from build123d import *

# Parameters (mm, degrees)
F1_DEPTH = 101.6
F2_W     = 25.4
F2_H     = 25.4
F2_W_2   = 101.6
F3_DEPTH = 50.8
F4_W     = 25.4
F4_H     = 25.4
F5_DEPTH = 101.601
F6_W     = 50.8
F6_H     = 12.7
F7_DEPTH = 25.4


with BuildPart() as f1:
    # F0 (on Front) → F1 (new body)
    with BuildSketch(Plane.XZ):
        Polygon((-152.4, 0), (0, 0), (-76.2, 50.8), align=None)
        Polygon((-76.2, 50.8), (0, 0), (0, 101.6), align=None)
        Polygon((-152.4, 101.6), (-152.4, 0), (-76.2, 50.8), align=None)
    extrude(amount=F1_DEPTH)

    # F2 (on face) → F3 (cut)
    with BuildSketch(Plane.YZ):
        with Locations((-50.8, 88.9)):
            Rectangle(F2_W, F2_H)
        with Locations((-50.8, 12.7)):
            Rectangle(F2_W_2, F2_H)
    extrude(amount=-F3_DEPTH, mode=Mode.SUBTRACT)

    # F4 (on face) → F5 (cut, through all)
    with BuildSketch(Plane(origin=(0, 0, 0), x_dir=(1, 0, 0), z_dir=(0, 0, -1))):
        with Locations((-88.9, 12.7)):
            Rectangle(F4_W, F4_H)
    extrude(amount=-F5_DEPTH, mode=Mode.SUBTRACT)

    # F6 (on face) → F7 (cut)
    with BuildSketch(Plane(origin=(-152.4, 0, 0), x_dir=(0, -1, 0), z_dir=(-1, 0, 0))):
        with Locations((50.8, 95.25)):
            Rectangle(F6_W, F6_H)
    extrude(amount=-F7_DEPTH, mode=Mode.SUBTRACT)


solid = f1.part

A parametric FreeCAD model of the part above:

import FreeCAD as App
import Part
import Sketcher
Q = App.Units.Quantity

doc = App.newDocument("Part")
body = doc.addObject("PartDesign::Body", "Body")

sketch1 = body.newObject("Sketcher::SketchObject", "Sketch")
sketch1.AttachmentSupport = (doc.getObject("XZ_Plane"), [""])
sketch1.MapMode = "FlatFace"
sketch1.addGeometry([
    Part.LineSegment(App.Vector(-152.4, 0, 0), App.Vector(0, 0, 0)),
    Part.LineSegment(App.Vector(0, 0, 0), App.Vector(0, 101.6, 0)),
    Part.LineSegment(App.Vector(0, 101.6, 0), App.Vector(-76.2, 50.8, 0)),
    Part.LineSegment(App.Vector(-76.2, 50.8, 0), App.Vector(-152.4, 101.6, 0)),
    Part.LineSegment(App.Vector(-152.4, 101.6, 0), App.Vector(-152.4, 0, 0)),
], False)
sketch1.addConstraint([
    Sketcher.Constraint("Coincident", 0, 2, 1, 1),
    Sketcher.Constraint("Coincident", 1, 2, 2, 1),
    Sketcher.Constraint("Coincident", 2, 2, 3, 1),
    Sketcher.Constraint("Coincident", 3, 2, 4, 1),
    Sketcher.Constraint("Coincident", 4, 2, 0, 1),
    Sketcher.Constraint("Horizontal", 0),
    Sketcher.Constraint("Vertical", 1),
    Sketcher.Constraint("Vertical", 4),
    Sketcher.Constraint("Coincident", 0, 2, -1, 1),
    Sketcher.Constraint("Horizontal", 1, 2, 3, 2),
    Sketcher.Constraint("Equal", 2, 3),
    Sketcher.Constraint("DistanceX", 0, 1, 0, 2, Q("6 in")),
    Sketcher.Constraint("DistanceY", 1, 1, 1, 2, Q("4 in")),
    Sketcher.Constraint("DistanceY", -1, 1, 2, 2, Q("2 in")),
])
pad1 = body.newObject("PartDesign::Pad", "Pad")
pad1.Profile = sketch1
pad1.Length = Q("4 in")

sketch2 = body.newObject("Sketcher::SketchObject", "Sketch001")
sketch2.AttachmentSupport = (doc.getObject("YZ_Plane"), [""])
sketch2.MapMode = "FlatFace"
sketch2.addGeometry([
    Part.LineSegment(App.Vector(-63.5, 101.6, 0), App.Vector(-63.5, 76.2, 0)),
    Part.LineSegment(App.Vector(-63.5, 76.2, 0), App.Vector(-38.1, 76.2, 0)),
    Part.LineSegment(App.Vector(-38.1, 76.2, 0), App.Vector(-38.1, 101.6, 0)),
    Part.LineSegment(App.Vector(-38.1, 101.6, 0), App.Vector(-63.5, 101.6, 0)),
    Part.LineSegment(App.Vector(-101.6, 25.4, 0), App.Vector(-101.6, 0, 0)),
    Part.LineSegment(App.Vector(-101.6, 0, 0), App.Vector(0, 0, 0)),
    Part.LineSegment(App.Vector(0, 0, 0), App.Vector(0, 25.4, 0)),
    Part.LineSegment(App.Vector(0, 25.4, 0), App.Vector(-101.6, 25.4, 0)),
], False)
sketch2.addConstraint([
    Sketcher.Constraint("Coincident", 0, 2, 1, 1),
    Sketcher.Constraint("Coincident", 1, 2, 2, 1),
    Sketcher.Constraint("Coincident", 2, 2, 3, 1),
    Sketcher.Constraint("Coincident", 3, 2, 0, 1),
    Sketcher.Constraint("Coincident", 4, 2, 5, 1),
    Sketcher.Constraint("Coincident", 5, 2, 6, 1),
    Sketcher.Constraint("Coincident", 6, 2, 7, 1),
    Sketcher.Constraint("Coincident", 7, 2, 4, 1),
    Sketcher.Constraint("Vertical", 0),
    Sketcher.Constraint("Horizontal", 1),
    Sketcher.Constraint("Vertical", 2),
    Sketcher.Constraint("Horizontal", 3),
    Sketcher.Constraint("Vertical", 4),
    Sketcher.Constraint("Horizontal", 5),
    Sketcher.Constraint("Vertical", 6),
    Sketcher.Constraint("Horizontal", 7),
    Sketcher.Constraint("Coincident", 5, 2, -1, 1),
    Sketcher.Constraint("Equal", 3, 0),
    Sketcher.Constraint("Equal", 2, 4),
    Sketcher.Constraint("DistanceX", 1, 1, 1, 2, Q("1 in")),
    Sketcher.Constraint("DistanceX", 5, 1, 5, 2, Q("4 in")),
    Sketcher.Constraint("DistanceY", -1, 1, 0, 2, Q("3 in")),
    Sketcher.Constraint("DistanceX", 0, 2, -1, 1, Q("2.5 in")),
])
pocket1 = body.newObject("PartDesign::Pocket", "Pocket")
pocket1.Profile = sketch2
pocket1.Length = Q("2 in")

sketch3 = body.newObject("Sketcher::SketchObject", "Sketch002")
sketch3.AttachmentSupport = (doc.getObject("XY_Plane"), [""])
sketch3.MapMode = "FlatFace"
sketch3.addGeometry([
    Part.LineSegment(App.Vector(-101.6, -25.4, 0), App.Vector(-101.6, 0, 0)),
    Part.LineSegment(App.Vector(-101.6, 0, 0), App.Vector(-76.2, 0, 0)),
    Part.LineSegment(App.Vector(-76.2, 0, 0), App.Vector(-76.2, -25.4, 0)),
    Part.LineSegment(App.Vector(-76.2, -25.4, 0), App.Vector(-101.6, -25.4, 0)),
], False)
sketch3.addConstraint([
    Sketcher.Constraint("Coincident", 0, 2, 1, 1),
    Sketcher.Constraint("Coincident", 1, 2, 2, 1),
    Sketcher.Constraint("Coincident", 2, 2, 3, 1),
    Sketcher.Constraint("Coincident", 3, 2, 0, 1),
    Sketcher.Constraint("Vertical", 0),
    Sketcher.Constraint("Horizontal", 1),
    Sketcher.Constraint("Vertical", 2),
    Sketcher.Constraint("Horizontal", 3),
    Sketcher.Constraint("PointOnObject", 0, 2, -1),
    Sketcher.Constraint("Equal", 3, 0),
    Sketcher.Constraint("DistanceX", 1, 1, 1, 2, Q("1 in")),
    Sketcher.Constraint("DistanceX", 0, 2, -1, 1, Q("4 in")),
])
pocket2 = body.newObject("PartDesign::Pocket", "Pocket001")
pocket2.Profile = sketch3
pocket2.Type = "ThroughAll"
pocket2.Reversed = True

sketch4 = body.newObject("Sketcher::SketchObject", "Sketch003")
sketch4.AttachmentSupport = (doc.getObject("YZ_Plane"), [""])
sketch4.MapMode = "FlatFace"
sketch4.AttachmentOffset = App.Placement(App.Vector(0, 0, -6 * 25.4), App.Rotation())
sketch4.addGeometry([
    Part.LineSegment(App.Vector(-25.4, 101.6, 0), App.Vector(-25.4, 88.9, 0)),
    Part.LineSegment(App.Vector(-25.4, 88.9, 0), App.Vector(-76.2, 88.9, 0)),
    Part.LineSegment(App.Vector(-76.2, 88.9, 0), App.Vector(-76.2, 101.6, 0)),
    Part.LineSegment(App.Vector(-76.2, 101.6, 0), App.Vector(-25.4, 101.6, 0)),
], False)
sketch4.addConstraint([
    Sketcher.Constraint("Coincident", 0, 2, 1, 1),
    Sketcher.Constraint("Coincident", 1, 2, 2, 1),
    Sketcher.Constraint("Coincident", 2, 2, 3, 1),
    Sketcher.Constraint("Coincident", 3, 2, 0, 1),
    Sketcher.Constraint("Vertical", 0),
    Sketcher.Constraint("Horizontal", 1),
    Sketcher.Constraint("Vertical", 2),
    Sketcher.Constraint("Horizontal", 3),
    Sketcher.Constraint("DistanceX", 1, 2, 1, 1, Q("2 in")),
    Sketcher.Constraint("DistanceY", 0, 2, 0, 1, Q("0.5 in")),
    Sketcher.Constraint("DistanceX", 0, 2, -1, 1, Q("1 in")),
    Sketcher.Constraint("DistanceY", -1, 1, 2, 2, Q("4 in")),
])
pocket3 = body.newObject("PartDesign::Pocket", "Pocket002")
pocket3.Profile = sketch4
pocket3.Length = Q("1 in")
pocket3.Reversed = True

doc.recompute()
